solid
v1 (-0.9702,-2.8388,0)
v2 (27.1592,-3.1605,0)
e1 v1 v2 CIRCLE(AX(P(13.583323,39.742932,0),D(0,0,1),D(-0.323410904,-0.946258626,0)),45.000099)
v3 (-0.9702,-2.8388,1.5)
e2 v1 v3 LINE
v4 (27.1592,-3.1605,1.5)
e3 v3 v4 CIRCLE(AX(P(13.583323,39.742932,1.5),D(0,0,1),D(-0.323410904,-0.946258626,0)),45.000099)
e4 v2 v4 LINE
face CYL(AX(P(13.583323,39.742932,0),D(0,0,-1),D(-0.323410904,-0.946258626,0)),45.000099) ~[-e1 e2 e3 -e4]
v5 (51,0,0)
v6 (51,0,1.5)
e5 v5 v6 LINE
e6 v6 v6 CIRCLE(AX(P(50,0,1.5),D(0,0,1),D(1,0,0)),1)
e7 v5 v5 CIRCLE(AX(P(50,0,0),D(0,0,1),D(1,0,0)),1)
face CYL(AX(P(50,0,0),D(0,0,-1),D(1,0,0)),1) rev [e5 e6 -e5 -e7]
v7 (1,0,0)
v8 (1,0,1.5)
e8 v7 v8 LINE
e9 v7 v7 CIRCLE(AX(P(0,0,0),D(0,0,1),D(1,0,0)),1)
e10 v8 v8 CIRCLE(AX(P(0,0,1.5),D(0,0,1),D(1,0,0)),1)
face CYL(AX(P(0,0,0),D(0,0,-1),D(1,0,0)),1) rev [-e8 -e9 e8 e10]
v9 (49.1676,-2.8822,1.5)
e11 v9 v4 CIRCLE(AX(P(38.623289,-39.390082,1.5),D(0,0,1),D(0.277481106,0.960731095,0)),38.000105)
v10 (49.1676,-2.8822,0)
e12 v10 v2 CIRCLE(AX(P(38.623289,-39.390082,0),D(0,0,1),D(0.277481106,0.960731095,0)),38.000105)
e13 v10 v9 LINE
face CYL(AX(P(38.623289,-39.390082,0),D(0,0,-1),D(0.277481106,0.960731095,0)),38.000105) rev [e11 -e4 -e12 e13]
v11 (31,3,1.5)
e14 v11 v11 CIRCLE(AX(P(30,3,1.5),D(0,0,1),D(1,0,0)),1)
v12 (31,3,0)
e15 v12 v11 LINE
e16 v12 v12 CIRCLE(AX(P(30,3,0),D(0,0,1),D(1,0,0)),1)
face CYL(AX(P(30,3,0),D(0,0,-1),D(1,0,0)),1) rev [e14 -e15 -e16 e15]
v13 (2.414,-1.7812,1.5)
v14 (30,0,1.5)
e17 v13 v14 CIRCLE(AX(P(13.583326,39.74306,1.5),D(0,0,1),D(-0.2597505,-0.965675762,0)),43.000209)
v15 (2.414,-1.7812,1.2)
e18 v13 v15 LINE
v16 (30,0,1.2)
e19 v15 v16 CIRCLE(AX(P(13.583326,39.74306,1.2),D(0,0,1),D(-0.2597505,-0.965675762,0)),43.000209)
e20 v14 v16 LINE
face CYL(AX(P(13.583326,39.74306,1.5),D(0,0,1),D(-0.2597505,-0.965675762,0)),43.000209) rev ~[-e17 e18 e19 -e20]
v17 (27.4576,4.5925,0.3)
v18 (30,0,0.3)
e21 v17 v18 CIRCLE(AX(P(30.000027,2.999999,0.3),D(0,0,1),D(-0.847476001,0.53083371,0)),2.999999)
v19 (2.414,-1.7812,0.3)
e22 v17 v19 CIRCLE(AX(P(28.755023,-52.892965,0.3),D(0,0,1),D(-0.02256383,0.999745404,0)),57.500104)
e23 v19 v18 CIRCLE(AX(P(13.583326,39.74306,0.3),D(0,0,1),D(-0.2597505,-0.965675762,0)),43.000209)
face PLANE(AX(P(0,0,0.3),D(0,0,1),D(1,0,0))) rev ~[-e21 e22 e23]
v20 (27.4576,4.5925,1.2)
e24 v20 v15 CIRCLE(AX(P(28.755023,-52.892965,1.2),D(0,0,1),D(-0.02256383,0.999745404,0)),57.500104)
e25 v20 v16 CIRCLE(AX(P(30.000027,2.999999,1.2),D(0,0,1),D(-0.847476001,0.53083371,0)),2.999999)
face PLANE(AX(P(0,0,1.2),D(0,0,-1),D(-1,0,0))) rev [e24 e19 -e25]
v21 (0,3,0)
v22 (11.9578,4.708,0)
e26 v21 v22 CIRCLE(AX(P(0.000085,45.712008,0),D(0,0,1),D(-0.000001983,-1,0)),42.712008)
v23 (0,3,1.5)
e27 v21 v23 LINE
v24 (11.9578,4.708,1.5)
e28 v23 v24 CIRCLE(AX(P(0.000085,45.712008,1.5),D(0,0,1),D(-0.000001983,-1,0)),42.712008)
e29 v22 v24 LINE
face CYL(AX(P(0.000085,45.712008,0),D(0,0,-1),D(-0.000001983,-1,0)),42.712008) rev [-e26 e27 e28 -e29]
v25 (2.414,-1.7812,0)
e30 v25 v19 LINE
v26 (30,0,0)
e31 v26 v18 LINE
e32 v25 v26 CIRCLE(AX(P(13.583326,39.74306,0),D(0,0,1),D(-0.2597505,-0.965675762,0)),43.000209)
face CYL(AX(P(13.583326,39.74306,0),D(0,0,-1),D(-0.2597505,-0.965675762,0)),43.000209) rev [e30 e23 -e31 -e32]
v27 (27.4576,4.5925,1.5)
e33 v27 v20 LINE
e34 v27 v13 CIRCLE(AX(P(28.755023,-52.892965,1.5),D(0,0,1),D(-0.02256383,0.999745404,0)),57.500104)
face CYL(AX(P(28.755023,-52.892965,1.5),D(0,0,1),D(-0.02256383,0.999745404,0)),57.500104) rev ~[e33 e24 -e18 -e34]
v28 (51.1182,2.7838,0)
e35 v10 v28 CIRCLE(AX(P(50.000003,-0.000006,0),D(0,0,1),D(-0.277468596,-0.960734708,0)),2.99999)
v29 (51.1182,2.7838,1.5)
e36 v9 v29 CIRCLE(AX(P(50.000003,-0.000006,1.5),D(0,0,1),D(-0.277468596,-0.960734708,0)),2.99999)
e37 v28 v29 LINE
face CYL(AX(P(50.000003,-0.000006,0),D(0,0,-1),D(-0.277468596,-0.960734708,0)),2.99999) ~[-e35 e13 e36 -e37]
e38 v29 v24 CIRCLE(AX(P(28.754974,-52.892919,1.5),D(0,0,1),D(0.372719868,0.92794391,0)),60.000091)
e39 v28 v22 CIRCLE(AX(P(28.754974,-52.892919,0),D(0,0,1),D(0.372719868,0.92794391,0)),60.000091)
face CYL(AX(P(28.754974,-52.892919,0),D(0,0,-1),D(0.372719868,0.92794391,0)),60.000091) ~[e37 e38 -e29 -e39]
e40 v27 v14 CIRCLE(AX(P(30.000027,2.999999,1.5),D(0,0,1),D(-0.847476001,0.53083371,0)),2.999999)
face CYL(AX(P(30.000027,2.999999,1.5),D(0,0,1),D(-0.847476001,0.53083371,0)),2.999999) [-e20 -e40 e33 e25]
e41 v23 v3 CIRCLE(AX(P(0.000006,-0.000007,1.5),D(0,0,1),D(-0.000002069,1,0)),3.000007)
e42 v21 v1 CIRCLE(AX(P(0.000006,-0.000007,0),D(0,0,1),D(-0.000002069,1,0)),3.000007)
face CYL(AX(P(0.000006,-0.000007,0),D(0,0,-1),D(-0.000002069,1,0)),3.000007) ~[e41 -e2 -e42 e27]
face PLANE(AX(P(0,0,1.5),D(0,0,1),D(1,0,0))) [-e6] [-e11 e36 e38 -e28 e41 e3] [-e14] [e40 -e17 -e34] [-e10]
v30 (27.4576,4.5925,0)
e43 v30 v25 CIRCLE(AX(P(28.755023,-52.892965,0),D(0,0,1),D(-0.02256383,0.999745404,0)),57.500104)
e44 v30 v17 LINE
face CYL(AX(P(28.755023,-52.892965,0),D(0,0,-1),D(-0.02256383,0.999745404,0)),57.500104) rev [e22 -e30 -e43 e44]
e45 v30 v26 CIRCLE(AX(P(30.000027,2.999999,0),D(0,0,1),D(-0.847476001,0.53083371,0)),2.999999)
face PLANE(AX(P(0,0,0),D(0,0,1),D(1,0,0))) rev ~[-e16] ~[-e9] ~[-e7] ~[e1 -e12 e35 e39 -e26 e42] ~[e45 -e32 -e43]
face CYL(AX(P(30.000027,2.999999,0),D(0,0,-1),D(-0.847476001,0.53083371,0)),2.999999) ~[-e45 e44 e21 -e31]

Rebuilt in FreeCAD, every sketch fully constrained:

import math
import FreeCAD as App
import Part
import Sketcher
from FreeCAD import Vector

doc = App.newDocument("Part")
params = doc.addObject("Spreadsheet::Sheet", "Params")
for row, (alias, value) in enumerate([
    ("sketch1_diameter", "2 mm"),
    ("sketch1_radius", "3 mm"),
    ("sketch1_radius2", "45 mm"),
    ("sketch1_radius3", "38 mm"),
    ("sketch1_radius4", "60 mm"),
    ("pad1_length", "1.5 mm"),
    ("sketch2_radius", "3 mm"),
    ("sketch2_radius2", "43 mm"),
    ("sketch2_radius3", "57.5 mm"),
    ("pocket1_length", "0.3 mm"),
], start=1):
    params.set(f"A{row}", alias)
    params.set(f"B{row}", "=" + value)
    params.setAlias(f"B{row}", alias)

body = doc.addObject("PartDesign::Body", "Body")

# Sketch on XY plane
sketch1 = body.newObject("Sketcher::SketchObject", "Sketch")
sketch1.AttachmentSupport = (doc.getObject("XY_Plane"), [""])
sketch1.MapMode = "FlatFace"
sketch1.addGeometry([
    Part.ArcOfCircle(Part.Circle(Vector(0, 45.7, 0), Vector(0, 0, 1), 42.7), math.radians(-90), math.radians(-73.74)),  # 0
    Part.ArcOfCircle(Part.Circle(Vector(0, 0, 0), Vector(0, 0, 1), 3), math.radians(90), math.radians(251)),  # 1
    Part.ArcOfCircle(Part.Circle(Vector(13.6, 39.7, 0), Vector(0, 0, 1), 45), math.radians(-109), math.radians(-72)),  # 2
    Part.ArcOfCircle(Part.Circle(Vector(38.6, -39.4, 0), Vector(0, 0, 1), 38), math.radians(74), math.radians(108)),  # 3
    Part.ArcOfCircle(Part.Circle(Vector(50, 0, 0), Vector(0, 0, 1), 3), math.radians(-106), math.radians(68)),  # 4
    Part.ArcOfCircle(Part.Circle(Vector(28.8, -52.9, 0), Vector(0, 0, 1), 60), math.radians(68), math.radians(106)),  # 5
    Part.Circle(Vector(0, 0, 0), Vector(0, 0, 1), 1),  # 6
    Part.Circle(Vector(50, 0, 0), Vector(0, 0, 1), 1),  # 7
    Part.Circle(Vector(30, 3, 0), Vector(0, 0, 1), 1),  # 8
], False)
sketch1.addConstraint([
    Sketcher.Constraint("Tangent", 0, 1, 1, 1),
    Sketcher.Constraint("Tangent", 1, 2, 2, 1),
    Sketcher.Constraint("Tangent", 2, 2, 3, 2),
    Sketcher.Constraint("Tangent", 3, 1, 4, 1),
    Sketcher.Constraint("Tangent", 4, 2, 5, 1),
    Sketcher.Constraint("Tangent", 5, 2, 0, 2),
    Sketcher.Constraint("Coincident", 1, 3, -1, 1),
    Sketcher.Constraint("Coincident", 6, 3, -1, 1),
    Sketcher.Constraint("Coincident", 7, 3, 4, 3),
    Sketcher.Constraint("Equal", 1, 4),
    Sketcher.Constraint("Equal", 6, 7),
    Sketcher.Constraint("Equal", 7, 8),
    Sketcher.Constraint("PointOnObject", 0, 3, -2),
    Sketcher.Constraint("PointOnObject", 4, 3, -1),
    Sketcher.Constraint("Horizontal", 8, 3, 0, 1),
    Sketcher.Constraint("Diameter", 6, 2.0),
    Sketcher.Constraint("Radius", 1, 3.0),
    Sketcher.Constraint("Radius", 2, 45.0),
    Sketcher.Constraint("Radius", 3, 38.0),
    Sketcher.Constraint("Radius", 5, 60.0),
    Sketcher.Constraint("DistanceX", -1, 1, 4, 3, 50.0),
    Sketcher.Constraint("DistanceX", -1, 1, 8, 3, 30.0),
    Sketcher.Constraint("Radius", 0, 42.712),
    Sketcher.Constraint("DistanceY", 3, 3, -1, 1, 39.39),
])
sketch1.setExpression("Constraints[15]", "Params.sketch1_diameter")
sketch1.setExpression("Constraints[16]", "Params.sketch1_radius")
sketch1.setExpression("Constraints[17]", "Params.sketch1_radius2")
sketch1.setExpression("Constraints[18]", "Params.sketch1_radius3")
sketch1.setExpression("Constraints[19]", "Params.sketch1_radius4")
pad1 = body.newObject("PartDesign::Pad", "Pad")
pad1.Profile = sketch1
pad1.setExpression("Length", "Params.pad1_length")

# Sketch on XY plane
sketch2 = body.newObject("Sketcher::SketchObject", "Sketch001")
sketch2.AttachmentSupport = (doc.getObject("XY_Plane"), [""])
sketch2.MapMode = "FlatFace"
sketch2.addGeometry([
    Part.ArcOfCircle(Part.Circle(Vector(30, 3, 0), Vector(0, 0, 1), 3), math.radians(148), math.radians(270)),
    Part.ArcOfCircle(Part.Circle(Vector(28.8, -52.9, 0), Vector(0, 0, 1), 57.5), math.radians(91), math.radians(117)),
    Part.ArcOfCircle(Part.Circle(Vector(13.6, 39.7, 0), Vector(0, 0, 1), 43), math.radians(-105), math.radians(-68)),
], False)
sketch2.addConstraint([
    Sketcher.Constraint("Coincident", 0, 1, 1, 1),
    Sketcher.Constraint("Coincident", 1, 2, 2, 1),
    Sketcher.Constraint("Coincident", 2, 2, 0, 2),
    Sketcher.Constraint("PointOnObject", 2, 2, -1),
    Sketcher.Constraint("Vertical", 0, 3, 2, 2),
    Sketcher.Constraint("Radius", 0, 3.0),
    Sketcher.Constraint("DistanceX", -1, 1, 0, 3, 30.0),
    Sketcher.Constraint("Radius", 2, 43.0),
    Sketcher.Constraint("Radius", 1, 57.5),
    Sketcher.Constraint("DistanceX", -1, 1, 1, 3, 28.755),
    Sketcher.Constraint("DistanceX", -1, 1, 1, 2, 2.414),
    Sketcher.Constraint("DistanceY", 1, 2, 2, 3, 41.524),
])
sketch2.setExpression("Constraints[5]", "Params.sketch2_radius")
sketch2.setExpression("Constraints[7]", "Params.sketch2_radius2")
sketch2.setExpression("Constraints[8]", "Params.sketch2_radius3")
pocket1 = body.newObject("PartDesign::Pocket", "Pocket")
pocket1.Profile = sketch2
pocket1.setExpression("Length", "Params.pocket1_length")
pocket1.Reversed = True
doc.recompute()

datumplane = body.newObject("PartDesign::Plane", "DatumPlane")
datumplane.AttachmentSupport = (doc.getObject("XY_Plane"), [""])
datumplane.MapMode = "FlatFace"
datumplane.AttachmentOffset = App.Placement(Vector(0, 0, 0.75), App.Rotation())
mirrored = body.newObject("PartDesign::Mirrored", "Mirrored")
mirrored.Originals = [pocket1]
mirrored.MirrorPlane = (datumplane, [""])
body.Tip = mirrored

doc.recompute()
